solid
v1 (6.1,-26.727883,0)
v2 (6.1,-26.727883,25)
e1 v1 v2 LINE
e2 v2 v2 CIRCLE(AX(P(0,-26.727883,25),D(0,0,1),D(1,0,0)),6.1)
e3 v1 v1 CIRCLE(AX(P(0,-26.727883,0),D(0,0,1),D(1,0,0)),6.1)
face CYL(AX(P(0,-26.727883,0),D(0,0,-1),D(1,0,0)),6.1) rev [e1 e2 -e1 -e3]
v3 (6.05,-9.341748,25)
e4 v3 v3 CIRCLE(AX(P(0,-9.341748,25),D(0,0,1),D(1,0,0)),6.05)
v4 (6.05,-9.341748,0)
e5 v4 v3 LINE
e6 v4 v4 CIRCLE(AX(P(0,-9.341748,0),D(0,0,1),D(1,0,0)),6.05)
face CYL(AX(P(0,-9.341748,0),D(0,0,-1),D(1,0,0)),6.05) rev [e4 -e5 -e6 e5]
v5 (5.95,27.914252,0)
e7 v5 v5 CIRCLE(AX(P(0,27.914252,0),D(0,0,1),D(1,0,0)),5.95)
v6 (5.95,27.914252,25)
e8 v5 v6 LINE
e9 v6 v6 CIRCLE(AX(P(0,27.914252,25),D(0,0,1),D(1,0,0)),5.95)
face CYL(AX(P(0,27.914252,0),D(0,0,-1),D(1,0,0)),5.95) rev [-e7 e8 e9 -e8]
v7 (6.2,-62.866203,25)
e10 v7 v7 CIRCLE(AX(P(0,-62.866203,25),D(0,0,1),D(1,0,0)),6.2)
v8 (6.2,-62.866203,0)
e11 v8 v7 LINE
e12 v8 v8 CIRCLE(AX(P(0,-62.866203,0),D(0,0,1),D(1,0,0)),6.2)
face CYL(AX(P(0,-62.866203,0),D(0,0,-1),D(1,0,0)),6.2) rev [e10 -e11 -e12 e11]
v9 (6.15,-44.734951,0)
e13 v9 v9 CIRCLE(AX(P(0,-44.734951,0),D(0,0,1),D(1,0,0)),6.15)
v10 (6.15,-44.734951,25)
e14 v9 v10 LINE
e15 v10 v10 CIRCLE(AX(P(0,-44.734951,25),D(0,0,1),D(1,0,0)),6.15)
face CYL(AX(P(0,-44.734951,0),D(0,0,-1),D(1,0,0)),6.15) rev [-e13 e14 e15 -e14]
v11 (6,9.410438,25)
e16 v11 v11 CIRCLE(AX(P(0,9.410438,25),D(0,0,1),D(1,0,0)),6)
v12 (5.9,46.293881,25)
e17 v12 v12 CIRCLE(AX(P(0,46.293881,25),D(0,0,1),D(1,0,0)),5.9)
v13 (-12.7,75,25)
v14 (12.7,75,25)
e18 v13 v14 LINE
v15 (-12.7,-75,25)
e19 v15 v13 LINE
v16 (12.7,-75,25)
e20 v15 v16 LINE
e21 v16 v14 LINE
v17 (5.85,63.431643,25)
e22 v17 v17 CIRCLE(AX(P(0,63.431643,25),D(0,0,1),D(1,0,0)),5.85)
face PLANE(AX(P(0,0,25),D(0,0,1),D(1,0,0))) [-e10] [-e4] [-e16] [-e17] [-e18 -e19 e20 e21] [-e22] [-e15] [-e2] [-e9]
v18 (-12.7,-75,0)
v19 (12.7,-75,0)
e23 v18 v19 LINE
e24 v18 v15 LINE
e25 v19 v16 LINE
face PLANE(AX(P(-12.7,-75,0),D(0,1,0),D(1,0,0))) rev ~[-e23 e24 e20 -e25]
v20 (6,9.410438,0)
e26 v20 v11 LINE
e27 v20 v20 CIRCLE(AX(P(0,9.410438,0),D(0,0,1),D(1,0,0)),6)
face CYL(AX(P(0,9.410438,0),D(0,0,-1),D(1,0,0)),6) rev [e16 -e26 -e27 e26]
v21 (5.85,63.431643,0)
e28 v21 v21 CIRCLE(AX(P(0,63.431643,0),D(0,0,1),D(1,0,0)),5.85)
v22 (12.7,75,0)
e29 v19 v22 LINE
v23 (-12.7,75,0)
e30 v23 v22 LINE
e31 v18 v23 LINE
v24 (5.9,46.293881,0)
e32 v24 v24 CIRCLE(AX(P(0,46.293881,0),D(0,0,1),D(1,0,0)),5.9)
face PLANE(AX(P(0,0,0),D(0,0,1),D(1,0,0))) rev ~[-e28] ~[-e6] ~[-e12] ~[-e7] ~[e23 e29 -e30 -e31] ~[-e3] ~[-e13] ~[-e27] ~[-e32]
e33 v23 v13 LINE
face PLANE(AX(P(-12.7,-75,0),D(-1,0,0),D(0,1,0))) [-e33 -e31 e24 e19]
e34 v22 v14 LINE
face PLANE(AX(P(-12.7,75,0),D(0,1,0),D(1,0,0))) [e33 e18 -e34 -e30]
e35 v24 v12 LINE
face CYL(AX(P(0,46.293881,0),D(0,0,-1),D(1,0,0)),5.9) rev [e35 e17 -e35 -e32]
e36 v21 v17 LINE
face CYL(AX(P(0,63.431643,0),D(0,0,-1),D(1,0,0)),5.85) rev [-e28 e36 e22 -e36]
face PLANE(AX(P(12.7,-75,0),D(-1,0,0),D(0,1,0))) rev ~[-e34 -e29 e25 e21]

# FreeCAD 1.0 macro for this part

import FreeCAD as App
import Part
import Sketcher
Q = App.Units.Quantity

doc = App.newDocument("Part")
body = doc.addObject("PartDesign::Body", "Body")

# Sketch on XY plane
sketch1 = body.newObject("Sketcher::SketchObject", "Sketch")
sketch1.AttachmentSupport = (doc.getObject("XY_Plane"), [""])
sketch1.MapMode = "FlatFace"
sketch1.addGeometry([
    Part.LineSegment(App.Vector(-13, 75, 0), App.Vector(-13, -75, 0)),  # 0
    Part.LineSegment(App.Vector(-13, -75, 0), App.Vector(13, -75, 0)),  # 1
    Part.LineSegment(App.Vector(13, -75, 0), App.Vector(13, 75, 0)),  # 2
    Part.LineSegment(App.Vector(13, 75, 0), App.Vector(-13, 75, 0)),  # 3
    Part.Circle(App.Vector(0, -63, 0), App.Vector(0, 0, 1), 6),  # 4
    Part.Circle(App.Vector(0, -45, 0), App.Vector(0, 0, 1), 6),  # 5
    Part.Circle(App.Vector(0, -27, 0), App.Vector(0, 0, 1), 6),  # 6
    Part.Circle(App.Vector(0, -9, 0), App.Vector(0, 0, 1), 6),  # 7
    Part.Circle(App.Vector(0, 9, 0), App.Vector(0, 0, 1), 6),  # 8
    Part.Circle(App.Vector(0, 28, 0), App.Vector(0, 0, 1), 6),  # 9
    Part.Circle(App.Vector(0, 46, 0), App.Vector(0, 0, 1), 6),  # 10
    Part.Circle(App.Vector(0, 63, 0), App.Vector(0, 0, 1), 6),  # 11
], False)
sketch1.addConstraint([
    Sketcher.Constraint("Coincident", 0, 2, 1, 1),
    Sketcher.Constraint("Coincident", 1, 2, 2, 1),
    Sketcher.Constraint("Coincident", 2, 2, 3, 1),
    Sketcher.Constraint("Coincident", 3, 2, 0, 1),
    Sketcher.Constraint("Vertical", 0),
    Sketcher.Constraint("Horizontal", 1),
    Sketcher.Constraint("Vertical", 2),
    Sketcher.Constraint("Horizontal", 3),
    Sketcher.Constraint("Symmetric", 0, 2, 2, 2, -1, 1),
    Sketcher.Constraint("PointOnObject", 4, 3, -2),
    Sketcher.Constraint("PointOnObject", 5, 3, -2),
    Sketcher.Constraint("PointOnObject", 6, 3, -2),
    Sketcher.Constraint("PointOnObject", 7, 3, -2),
    Sketcher.Constraint("PointOnObject", 8, 3, -2),
    Sketcher.Constraint("PointOnObject", 9, 3, -2),
    Sketcher.Constraint("PointOnObject", 10, 3, -2),
    Sketcher.Constraint("PointOnObject", 11, 3, -2),
    Sketcher.Constraint("Diameter", 8, Q("12 mm")),
    Sketcher.Constraint("Diameter", 4, Q("12.4 mm")),
    Sketcher.Constraint("Diameter", 5, Q("12.3 mm")),
    Sketcher.Constraint("Diameter", 6, Q("12.2 mm")),
    Sketcher.Constraint("Diameter", 7, Q("12.1 mm")),
    Sketcher.Constraint("Diameter", 9, Q("11.9 mm")),
    Sketcher.Constraint("Diameter", 10, Q("11.8 mm")),
    Sketcher.Constraint("Diameter", 11, Q("11.7 mm")),
    Sketcher.Constraint("DistanceY", 0, 2, 0, 1, Q("150 mm")),
    Sketcher.Constraint("DistanceX", 1, 1, 1, 2, Q("25.4 mm")),
    Sketcher.Constraint("DistanceY", 7, 3, 9, 3, Q("37.256 mm")),
    Sketcher.Constraint("DistanceY", 5, 3, -1, 1, Q("44.734951 mm")),
    Sketcher.Constraint("DistanceY", 7, 3, -1, 1, Q("9.341748 mm")),
    Sketcher.Constraint("DistanceY", -1, 1, 10, 3, Q("46.293881 mm")),
    Sketcher.Constraint("DistanceY", 4, 3, 5, 3, Q("18.131252 mm")),
    Sketcher.Constraint("DistanceY", 5, 3, 6, 3, Q("18.007068 mm")),
    Sketcher.Constraint("DistanceY", 6, 3, 8, 3, Q("36.138321 mm")),
    Sketcher.Constraint("DistanceY", 9, 3, 11, 3, Q("35.517391 mm")),
])
pad1 = body.newObject("PartDesign::Pad", "Pad")
pad1.Profile = sketch1
pad1.Length = 25

doc.recompute()
